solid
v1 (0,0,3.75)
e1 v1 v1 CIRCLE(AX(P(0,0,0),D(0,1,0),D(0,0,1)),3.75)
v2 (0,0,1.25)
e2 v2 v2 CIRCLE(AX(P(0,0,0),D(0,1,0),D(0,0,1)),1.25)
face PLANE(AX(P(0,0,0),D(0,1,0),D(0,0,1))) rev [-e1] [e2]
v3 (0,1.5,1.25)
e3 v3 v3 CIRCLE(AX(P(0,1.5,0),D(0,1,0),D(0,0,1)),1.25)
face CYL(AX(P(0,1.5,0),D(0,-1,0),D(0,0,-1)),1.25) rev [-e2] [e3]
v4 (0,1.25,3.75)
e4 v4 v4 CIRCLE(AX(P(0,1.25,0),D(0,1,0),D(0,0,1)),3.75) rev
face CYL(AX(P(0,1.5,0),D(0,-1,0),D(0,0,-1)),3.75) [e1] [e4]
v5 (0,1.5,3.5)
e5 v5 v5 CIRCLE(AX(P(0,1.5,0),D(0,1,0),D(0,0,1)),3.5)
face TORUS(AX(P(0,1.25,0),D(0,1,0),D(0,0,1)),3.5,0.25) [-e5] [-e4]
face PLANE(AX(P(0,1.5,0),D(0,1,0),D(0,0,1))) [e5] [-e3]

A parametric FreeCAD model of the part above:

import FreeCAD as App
import Part
import Sketcher
from FreeCAD import Vector
Q = App.Units.Quantity


def edges_at(feature, points):
    """Names of the edges that pass closest to the given points."""
    edges = feature.Shape.Edges
    near = lambda p: min(range(len(edges)), key=lambda i: edges[i].distToShape(Part.Vertex(*p))[0])
    return sorted({f"Edge{near(p) + 1}" for p in points})

doc = App.newDocument("Part")
params = doc.addObject("Spreadsheet::Sheet", "Params")
for row, (alias, value) in enumerate([
    ("sketch1_diameter", "7.5 mm"),
    ("sketch1_diameter2", "2.5 mm"),
    ("pad1_length", "1.5 mm"),
    ("fillet_radius", "0.25 mm"),
], start=1):
    params.set(f"A{row}", alias)
    params.set(f"B{row}", "=" + value)
    params.setAlias(f"B{row}", alias)

body = doc.addObject("PartDesign::Body", "Body")

sketch1 = body.newObject("Sketcher::SketchObject", "Sketch")
sketch1.AttachmentSupport = (doc.getObject("XZ_Plane"), [""])
sketch1.MapMode = "FlatFace"
sketch1.addGeometry([
    Part.Circle(Vector(0, 0, 0), Vector(0, 0, 1), 3.8),
    Part.Circle(Vector(0, 0, 0), Vector(0, 0, 1), 1.2),
], False)
sketch1.addConstraint([
    Sketcher.Constraint("Coincident", 0, 3, -1, 1),
    Sketcher.Constraint("Coincident", 1, 3, -1, 1),
    Sketcher.Constraint("Diameter", 0, Q("7.5 mm")),
    Sketcher.Constraint("Diameter", 1, Q("2.5 mm")),
])
sketch1.setExpression("Constraints[2]", "Params.sketch1_diameter")
sketch1.setExpression("Constraints[3]", "Params.sketch1_diameter2")
pad1 = body.newObject("PartDesign::Pad", "Pad")
pad1.Profile = sketch1
pad1.setExpression("Length", "Params.pad1_length")
pad1.Reversed = True
doc.recompute()

fillet = body.newObject("PartDesign::Fillet", "Fillet")
fillet.Base = (pad1, edges_at(pad1, [(0, 1.5, -3.75)]))
fillet.setExpression("Radius", "Params.fillet_radius")

doc.recompute()
